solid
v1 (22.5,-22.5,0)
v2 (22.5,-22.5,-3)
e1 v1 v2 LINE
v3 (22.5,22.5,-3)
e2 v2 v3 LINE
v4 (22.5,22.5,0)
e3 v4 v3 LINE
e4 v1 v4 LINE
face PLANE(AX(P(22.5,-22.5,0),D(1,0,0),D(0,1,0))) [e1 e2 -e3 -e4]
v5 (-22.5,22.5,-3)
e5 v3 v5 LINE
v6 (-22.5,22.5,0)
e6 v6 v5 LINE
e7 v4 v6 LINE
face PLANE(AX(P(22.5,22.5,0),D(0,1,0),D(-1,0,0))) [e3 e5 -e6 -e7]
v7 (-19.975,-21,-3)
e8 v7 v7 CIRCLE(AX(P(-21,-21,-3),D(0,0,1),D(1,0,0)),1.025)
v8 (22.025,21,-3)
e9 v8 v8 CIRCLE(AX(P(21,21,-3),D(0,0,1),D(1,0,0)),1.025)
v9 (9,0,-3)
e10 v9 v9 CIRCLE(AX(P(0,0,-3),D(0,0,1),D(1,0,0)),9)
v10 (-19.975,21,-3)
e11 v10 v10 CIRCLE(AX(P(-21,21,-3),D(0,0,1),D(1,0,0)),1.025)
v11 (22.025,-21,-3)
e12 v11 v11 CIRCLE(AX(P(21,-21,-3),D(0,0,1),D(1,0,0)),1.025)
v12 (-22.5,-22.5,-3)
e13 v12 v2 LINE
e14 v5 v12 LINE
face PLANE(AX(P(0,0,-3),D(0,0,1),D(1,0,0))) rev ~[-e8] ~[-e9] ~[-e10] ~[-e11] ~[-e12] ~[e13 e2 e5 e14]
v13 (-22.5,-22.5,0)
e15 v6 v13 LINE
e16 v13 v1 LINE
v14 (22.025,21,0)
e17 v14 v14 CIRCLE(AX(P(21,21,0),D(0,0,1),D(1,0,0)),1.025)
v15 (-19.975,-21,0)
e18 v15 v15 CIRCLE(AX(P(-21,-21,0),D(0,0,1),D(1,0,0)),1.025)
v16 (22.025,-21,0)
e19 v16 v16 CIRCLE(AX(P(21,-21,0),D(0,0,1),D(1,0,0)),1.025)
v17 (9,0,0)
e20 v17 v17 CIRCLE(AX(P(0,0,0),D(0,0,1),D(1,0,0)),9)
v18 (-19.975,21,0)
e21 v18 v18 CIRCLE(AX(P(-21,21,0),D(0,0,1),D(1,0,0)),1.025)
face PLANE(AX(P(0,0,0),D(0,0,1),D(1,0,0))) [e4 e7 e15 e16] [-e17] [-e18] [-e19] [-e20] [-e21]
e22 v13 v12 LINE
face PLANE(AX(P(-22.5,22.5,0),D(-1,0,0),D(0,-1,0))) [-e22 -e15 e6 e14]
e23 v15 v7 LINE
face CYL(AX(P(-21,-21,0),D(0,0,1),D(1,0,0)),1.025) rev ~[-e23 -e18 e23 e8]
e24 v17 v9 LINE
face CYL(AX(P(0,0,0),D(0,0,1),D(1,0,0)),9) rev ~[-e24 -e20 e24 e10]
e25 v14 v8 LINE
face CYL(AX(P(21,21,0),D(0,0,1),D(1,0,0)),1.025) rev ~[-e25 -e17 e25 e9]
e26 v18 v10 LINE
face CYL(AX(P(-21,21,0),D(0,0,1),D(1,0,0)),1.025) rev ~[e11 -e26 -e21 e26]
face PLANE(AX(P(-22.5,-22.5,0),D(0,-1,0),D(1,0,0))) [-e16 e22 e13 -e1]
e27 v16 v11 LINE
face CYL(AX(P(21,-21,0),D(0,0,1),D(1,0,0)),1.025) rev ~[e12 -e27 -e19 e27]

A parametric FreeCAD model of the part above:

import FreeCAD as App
import Part
import Sketcher

doc = App.newDocument("Part")
body = doc.addObject("PartDesign::Body", "Body")

sketch1 = body.newObject("Sketcher::SketchObject", "Sketch")
sketch1.AttachmentSupport = (doc.getObject("XY_Plane"), [""])
sketch1.MapMode = "FlatFace"
sketch1.addGeometry([
    Part.LineSegment(App.Vector(22, -22, 0), App.Vector(22, 22, 0)),
    Part.LineSegment(App.Vector(22, 22, 0), App.Vector(-22, 22, 0)),
    Part.LineSegment(App.Vector(-22, 22, 0), App.Vector(-22, -22, 0)),
    Part.LineSegment(App.Vector(-22, -22, 0), App.Vector(22, -22, 0)),
    Part.Circle(App.Vector(0, 0, 0), App.Vector(0, 0, 1), 9),
], False)
sketch1.addConstraint([
    Sketcher.Constraint("Coincident", 0, 2, 1, 1),
    Sketcher.Constraint("Coincident", 1, 2, 2, 1),
    Sketcher.Constraint("Coincident", 2, 2, 3, 1),
    Sketcher.Constraint("Coincident", 3, 2, 0, 1),
    Sketcher.Constraint("Vertical", 0),
    Sketcher.Constraint("Horizontal", 1),
    Sketcher.Constraint("Vertical", 2),
    Sketcher.Constraint("Horizontal", 3),
    Sketcher.Constraint("Coincident", 4, 3, -1, 1),
    Sketcher.Constraint("Symmetric", 0, 2, 2, 2, -1, 1),
    Sketcher.Constraint("Equal", 3, 0),
    Sketcher.Constraint("Diameter", 4, 18.0),
    Sketcher.Constraint("DistanceX", 1, 2, 1, 1, 45.0),
])
pad1 = body.newObject("PartDesign::Pad", "Pad")
pad1.Profile = sketch1
pad1.Length = 3
pad1.Reversed = True

sketch2 = body.newObject("Sketcher::SketchObject", "Sketch001")
sketch2.AttachmentSupport = (doc.getObject("XY_Plane"), [""])
sketch2.MapMode = "FlatFace"
sketch2.addGeometry([
    Part.Circle(App.Vector(-21, 21, 0), App.Vector(0, 0, 1), 1),
    Part.Circle(App.Vector(-21, -21, 0), App.Vector(0, 0, 1), 1),
    Part.Circle(App.Vector(21, -21, 0), App.Vector(0, 0, 1), 1),
    Part.Circle(App.Vector(21, 21, 0), App.Vector(0, 0, 1), 1),
], False)
sketch2.addConstraint([
    Sketcher.Constraint("Equal", 0, 1),
    Sketcher.Constraint("Equal", 1, 2),
    Sketcher.Constraint("Equal", 2, 3),
    Sketcher.Constraint("Symmetric", 0, 3, 2, 3, -1, 1),
    Sketcher.Constraint("Symmetric", 1, 3, 3, 3, -1, 1),
    Sketcher.Constraint("Symmetric", 1, 3, 2, 3, -2),
    Sketcher.Constraint("Diameter", 0, 2.05),
    Sketcher.Constraint("DistanceX", 0, 3, -1, 1, 21.0),
    Sketcher.Constraint("DistanceY", -1, 1, 0, 3, 21.0),
])
pocket1 = body.newObject("PartDesign::Pocket", "Pocket")
pocket1.Profile = sketch2
pocket1.Length = 78.3851

doc.recompute()
